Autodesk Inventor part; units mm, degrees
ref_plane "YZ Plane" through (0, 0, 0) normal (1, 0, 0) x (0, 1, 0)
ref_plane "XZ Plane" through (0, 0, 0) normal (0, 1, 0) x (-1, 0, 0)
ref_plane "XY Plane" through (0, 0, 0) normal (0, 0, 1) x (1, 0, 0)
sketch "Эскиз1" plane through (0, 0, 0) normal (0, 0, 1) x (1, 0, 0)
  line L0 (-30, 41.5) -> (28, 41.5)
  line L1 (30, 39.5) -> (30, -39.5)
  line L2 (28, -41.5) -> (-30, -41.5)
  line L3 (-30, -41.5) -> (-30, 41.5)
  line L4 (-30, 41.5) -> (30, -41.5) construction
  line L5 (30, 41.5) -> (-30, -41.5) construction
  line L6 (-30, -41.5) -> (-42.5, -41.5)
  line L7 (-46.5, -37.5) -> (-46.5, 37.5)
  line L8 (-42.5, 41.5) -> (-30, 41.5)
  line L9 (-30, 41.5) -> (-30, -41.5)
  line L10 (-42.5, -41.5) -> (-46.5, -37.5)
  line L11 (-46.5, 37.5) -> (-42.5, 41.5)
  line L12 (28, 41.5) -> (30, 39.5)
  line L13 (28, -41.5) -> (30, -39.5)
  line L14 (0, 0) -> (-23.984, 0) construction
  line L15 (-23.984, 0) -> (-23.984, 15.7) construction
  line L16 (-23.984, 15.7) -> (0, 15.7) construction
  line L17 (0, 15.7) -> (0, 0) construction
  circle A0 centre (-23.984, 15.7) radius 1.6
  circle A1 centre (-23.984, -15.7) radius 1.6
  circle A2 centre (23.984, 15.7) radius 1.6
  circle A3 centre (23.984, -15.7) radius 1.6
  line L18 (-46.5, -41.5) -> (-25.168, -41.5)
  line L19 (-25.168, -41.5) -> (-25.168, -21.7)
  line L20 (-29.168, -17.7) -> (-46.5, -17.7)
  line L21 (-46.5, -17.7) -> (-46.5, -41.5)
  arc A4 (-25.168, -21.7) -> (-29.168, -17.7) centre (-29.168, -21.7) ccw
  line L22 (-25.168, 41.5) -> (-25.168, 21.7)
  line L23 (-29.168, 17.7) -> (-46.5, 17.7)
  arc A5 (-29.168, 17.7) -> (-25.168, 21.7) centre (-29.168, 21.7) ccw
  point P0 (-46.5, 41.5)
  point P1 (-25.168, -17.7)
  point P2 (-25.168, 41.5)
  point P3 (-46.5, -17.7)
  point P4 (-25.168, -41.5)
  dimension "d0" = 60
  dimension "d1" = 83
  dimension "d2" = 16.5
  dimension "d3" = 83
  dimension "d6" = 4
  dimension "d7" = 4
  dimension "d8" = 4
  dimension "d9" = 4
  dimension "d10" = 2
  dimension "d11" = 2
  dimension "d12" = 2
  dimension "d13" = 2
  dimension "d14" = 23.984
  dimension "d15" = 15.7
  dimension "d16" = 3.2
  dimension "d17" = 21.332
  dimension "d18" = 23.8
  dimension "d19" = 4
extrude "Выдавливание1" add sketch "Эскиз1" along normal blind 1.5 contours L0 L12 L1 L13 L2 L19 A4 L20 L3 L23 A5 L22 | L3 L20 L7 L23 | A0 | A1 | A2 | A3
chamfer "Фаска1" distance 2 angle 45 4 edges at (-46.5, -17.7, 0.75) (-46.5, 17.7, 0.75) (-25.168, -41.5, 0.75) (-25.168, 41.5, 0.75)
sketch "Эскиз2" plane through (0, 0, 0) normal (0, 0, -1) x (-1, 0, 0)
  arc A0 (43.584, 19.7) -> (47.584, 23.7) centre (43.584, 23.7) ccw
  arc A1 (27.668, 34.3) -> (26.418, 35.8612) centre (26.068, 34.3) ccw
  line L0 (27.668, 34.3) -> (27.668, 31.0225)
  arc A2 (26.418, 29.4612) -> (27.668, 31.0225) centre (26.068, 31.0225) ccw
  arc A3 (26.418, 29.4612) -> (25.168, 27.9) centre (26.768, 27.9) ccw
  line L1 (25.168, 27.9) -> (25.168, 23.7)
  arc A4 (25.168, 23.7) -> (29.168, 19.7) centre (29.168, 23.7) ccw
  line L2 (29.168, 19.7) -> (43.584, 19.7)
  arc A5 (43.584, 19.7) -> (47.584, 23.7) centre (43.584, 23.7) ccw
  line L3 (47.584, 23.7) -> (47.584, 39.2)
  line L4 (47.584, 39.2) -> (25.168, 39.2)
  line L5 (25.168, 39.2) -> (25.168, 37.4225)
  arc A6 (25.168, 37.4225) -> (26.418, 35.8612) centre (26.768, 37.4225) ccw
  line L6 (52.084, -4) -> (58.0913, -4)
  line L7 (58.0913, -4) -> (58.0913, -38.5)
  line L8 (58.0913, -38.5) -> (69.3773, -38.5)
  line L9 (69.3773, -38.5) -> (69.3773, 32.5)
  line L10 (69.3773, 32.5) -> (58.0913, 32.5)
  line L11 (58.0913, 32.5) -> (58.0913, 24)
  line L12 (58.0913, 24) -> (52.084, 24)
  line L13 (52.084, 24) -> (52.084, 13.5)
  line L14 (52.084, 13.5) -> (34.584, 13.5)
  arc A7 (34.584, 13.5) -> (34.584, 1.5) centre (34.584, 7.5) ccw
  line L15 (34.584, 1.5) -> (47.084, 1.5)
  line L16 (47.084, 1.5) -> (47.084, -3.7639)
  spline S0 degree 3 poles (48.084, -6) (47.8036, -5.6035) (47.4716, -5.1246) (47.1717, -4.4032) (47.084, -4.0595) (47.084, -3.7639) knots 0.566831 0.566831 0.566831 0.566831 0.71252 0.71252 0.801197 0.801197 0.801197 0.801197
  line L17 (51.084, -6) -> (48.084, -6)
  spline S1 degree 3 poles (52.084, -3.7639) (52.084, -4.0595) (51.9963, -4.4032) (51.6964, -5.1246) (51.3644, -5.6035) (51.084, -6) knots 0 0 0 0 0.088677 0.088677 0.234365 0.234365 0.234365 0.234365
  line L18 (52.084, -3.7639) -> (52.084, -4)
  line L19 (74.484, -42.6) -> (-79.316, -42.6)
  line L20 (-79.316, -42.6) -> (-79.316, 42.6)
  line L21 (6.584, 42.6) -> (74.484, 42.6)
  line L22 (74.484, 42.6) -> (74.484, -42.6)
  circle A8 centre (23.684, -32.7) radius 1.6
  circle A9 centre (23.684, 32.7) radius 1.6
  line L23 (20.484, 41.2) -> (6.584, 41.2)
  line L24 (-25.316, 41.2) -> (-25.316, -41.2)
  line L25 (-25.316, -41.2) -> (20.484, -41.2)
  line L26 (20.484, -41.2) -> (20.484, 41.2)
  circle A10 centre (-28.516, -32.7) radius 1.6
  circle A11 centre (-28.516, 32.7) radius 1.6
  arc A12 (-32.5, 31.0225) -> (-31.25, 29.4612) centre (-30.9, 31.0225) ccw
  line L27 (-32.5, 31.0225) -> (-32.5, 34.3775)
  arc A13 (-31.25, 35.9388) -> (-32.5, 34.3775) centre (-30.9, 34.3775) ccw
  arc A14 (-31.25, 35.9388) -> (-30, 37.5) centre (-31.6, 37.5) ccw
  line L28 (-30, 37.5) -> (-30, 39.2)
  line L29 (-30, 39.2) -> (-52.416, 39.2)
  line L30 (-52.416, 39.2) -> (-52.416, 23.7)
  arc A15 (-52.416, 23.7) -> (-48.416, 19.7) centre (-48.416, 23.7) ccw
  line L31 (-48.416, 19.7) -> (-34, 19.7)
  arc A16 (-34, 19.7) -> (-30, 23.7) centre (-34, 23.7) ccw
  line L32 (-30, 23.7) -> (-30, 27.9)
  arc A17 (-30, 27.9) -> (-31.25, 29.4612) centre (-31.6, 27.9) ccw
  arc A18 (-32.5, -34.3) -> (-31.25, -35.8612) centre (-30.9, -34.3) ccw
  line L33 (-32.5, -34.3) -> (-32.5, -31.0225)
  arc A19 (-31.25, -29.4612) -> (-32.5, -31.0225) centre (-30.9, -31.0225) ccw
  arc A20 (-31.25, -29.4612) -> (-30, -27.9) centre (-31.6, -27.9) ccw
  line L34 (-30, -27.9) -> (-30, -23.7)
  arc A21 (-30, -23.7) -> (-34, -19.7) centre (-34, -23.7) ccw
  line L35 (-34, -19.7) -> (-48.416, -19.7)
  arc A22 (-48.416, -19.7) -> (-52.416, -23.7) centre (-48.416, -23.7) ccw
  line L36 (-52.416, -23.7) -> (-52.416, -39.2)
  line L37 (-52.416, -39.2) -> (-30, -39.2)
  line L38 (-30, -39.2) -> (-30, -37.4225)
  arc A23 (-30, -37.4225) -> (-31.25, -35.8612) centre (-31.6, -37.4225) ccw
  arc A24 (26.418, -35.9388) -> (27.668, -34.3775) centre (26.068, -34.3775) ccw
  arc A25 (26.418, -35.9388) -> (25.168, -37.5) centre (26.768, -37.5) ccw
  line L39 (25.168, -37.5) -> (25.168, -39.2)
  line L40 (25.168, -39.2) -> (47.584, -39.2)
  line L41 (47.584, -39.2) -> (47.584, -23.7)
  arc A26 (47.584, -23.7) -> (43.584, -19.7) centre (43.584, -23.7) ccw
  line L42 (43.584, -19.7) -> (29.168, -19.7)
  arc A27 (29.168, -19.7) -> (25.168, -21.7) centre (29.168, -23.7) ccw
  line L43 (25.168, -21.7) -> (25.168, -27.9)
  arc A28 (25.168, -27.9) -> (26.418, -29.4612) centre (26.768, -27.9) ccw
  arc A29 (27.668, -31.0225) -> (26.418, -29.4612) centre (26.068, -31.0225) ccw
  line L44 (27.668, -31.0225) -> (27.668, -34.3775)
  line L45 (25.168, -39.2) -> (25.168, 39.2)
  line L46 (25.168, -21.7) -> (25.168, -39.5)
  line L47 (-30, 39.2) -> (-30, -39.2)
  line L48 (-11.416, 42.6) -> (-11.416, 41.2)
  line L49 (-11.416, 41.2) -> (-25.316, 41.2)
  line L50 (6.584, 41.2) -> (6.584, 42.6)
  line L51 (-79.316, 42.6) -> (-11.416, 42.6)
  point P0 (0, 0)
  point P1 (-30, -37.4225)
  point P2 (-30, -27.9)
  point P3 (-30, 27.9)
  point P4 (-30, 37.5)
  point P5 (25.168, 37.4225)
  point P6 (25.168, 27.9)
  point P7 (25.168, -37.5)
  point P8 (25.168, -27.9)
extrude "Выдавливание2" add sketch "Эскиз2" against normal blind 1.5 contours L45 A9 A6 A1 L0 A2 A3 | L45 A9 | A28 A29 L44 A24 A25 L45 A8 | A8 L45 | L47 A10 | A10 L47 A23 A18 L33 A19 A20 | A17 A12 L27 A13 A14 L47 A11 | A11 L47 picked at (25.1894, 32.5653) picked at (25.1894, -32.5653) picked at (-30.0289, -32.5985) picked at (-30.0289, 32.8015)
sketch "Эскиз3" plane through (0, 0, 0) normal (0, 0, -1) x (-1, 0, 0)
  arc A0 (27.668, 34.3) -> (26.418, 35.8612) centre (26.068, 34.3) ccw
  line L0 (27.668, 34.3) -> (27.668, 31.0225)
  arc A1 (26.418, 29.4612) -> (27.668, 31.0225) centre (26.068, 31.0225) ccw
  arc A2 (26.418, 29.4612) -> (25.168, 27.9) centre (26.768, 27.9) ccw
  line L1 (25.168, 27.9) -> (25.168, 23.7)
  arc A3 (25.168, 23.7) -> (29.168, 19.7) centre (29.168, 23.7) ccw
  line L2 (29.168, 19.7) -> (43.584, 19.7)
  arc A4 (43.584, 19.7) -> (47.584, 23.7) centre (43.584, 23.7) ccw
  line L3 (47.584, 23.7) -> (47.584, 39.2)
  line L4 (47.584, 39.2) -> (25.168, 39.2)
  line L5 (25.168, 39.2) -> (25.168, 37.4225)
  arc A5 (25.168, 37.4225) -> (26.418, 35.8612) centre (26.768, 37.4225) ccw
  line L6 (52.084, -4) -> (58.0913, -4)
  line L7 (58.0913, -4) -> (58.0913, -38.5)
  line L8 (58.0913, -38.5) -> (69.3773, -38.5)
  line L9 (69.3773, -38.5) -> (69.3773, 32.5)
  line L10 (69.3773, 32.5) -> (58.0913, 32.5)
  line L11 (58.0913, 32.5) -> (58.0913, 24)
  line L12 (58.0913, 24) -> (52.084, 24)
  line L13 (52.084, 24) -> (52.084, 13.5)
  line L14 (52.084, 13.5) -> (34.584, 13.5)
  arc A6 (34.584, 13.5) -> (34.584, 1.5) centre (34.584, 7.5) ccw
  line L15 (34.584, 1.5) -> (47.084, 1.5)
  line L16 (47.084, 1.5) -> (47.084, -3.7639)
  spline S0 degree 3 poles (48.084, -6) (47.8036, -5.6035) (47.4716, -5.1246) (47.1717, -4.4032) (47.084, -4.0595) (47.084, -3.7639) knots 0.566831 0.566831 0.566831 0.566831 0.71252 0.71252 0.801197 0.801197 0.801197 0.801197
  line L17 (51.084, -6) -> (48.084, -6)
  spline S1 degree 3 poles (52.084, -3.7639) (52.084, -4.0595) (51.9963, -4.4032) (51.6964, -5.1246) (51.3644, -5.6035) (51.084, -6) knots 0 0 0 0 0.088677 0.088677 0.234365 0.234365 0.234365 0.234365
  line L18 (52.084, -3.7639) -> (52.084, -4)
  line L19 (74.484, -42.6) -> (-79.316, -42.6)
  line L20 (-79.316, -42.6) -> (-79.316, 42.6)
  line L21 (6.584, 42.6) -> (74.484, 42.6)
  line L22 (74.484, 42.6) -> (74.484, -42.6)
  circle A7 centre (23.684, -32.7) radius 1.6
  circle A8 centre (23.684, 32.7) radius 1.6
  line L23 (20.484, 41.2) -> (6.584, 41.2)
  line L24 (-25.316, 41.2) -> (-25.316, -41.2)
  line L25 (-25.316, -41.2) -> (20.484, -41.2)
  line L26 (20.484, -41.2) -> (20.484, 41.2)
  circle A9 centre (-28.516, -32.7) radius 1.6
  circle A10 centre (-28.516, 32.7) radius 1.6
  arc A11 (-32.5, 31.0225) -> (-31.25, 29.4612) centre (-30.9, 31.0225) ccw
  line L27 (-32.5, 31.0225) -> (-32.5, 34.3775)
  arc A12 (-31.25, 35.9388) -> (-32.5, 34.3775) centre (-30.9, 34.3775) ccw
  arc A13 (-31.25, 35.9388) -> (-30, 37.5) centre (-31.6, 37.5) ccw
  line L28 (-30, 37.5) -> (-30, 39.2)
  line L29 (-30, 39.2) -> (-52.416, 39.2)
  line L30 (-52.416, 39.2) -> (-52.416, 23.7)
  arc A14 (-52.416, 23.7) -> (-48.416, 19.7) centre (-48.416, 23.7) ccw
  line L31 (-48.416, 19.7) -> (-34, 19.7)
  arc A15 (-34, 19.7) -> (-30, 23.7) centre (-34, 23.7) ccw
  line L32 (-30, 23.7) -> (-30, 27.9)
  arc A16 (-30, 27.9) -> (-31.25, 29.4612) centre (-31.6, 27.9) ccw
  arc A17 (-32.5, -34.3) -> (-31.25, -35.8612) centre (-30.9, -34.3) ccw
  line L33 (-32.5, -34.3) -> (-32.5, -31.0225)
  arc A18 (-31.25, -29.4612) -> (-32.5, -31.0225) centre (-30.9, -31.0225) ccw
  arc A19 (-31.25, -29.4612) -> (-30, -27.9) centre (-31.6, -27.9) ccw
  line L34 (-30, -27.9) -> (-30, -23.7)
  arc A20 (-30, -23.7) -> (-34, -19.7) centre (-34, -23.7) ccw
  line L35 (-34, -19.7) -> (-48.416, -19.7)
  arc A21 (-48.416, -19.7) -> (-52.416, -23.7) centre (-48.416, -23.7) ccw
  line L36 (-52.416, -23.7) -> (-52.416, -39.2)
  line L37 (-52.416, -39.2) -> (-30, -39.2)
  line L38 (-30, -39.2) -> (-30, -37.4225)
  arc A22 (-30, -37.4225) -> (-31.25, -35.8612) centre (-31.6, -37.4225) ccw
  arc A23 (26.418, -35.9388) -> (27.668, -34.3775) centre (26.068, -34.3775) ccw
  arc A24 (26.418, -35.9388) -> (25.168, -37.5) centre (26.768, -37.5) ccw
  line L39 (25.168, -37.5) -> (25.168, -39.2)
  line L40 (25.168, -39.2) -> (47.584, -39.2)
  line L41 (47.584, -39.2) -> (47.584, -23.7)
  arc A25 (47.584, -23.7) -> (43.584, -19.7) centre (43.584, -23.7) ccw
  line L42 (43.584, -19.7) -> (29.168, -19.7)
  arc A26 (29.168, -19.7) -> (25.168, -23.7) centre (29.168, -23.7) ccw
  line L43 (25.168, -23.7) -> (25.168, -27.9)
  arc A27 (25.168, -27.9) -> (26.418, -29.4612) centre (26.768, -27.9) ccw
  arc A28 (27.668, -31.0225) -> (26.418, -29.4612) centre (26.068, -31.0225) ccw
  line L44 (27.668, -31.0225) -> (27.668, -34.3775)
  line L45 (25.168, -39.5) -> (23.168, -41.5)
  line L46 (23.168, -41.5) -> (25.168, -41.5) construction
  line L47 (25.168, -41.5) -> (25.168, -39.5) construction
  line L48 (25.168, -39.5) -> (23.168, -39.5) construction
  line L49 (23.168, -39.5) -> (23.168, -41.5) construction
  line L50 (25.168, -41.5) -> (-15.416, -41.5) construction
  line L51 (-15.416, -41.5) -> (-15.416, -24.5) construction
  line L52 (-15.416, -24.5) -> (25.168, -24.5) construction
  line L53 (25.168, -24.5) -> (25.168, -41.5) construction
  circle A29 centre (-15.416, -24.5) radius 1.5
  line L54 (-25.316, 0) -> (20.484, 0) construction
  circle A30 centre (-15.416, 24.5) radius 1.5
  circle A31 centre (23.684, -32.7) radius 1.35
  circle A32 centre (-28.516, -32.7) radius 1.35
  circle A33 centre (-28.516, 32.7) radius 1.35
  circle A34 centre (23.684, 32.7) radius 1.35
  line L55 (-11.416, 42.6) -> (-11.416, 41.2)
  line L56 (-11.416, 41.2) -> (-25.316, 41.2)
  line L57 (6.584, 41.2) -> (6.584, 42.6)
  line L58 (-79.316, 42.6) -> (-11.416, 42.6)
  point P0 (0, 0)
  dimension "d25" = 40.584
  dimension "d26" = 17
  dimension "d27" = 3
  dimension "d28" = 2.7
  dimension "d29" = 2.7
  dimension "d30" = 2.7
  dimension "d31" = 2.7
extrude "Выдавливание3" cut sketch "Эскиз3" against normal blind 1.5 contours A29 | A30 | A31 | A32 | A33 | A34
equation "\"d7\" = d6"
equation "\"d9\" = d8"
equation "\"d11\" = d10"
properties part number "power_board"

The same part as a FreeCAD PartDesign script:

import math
import FreeCAD as App
import Part
import Sketcher

V = App.Vector
Q = App.Units.Quantity


def edges_at(feature, points):
    """Names of the edges that pass closest to the given points."""
    edges = feature.Shape.Edges
    near = lambda p: min(range(len(edges)), key=lambda i: edges[i].distToShape(Part.Vertex(*p))[0])
    return sorted({f"Edge{near(p) + 1}" for p in points})

doc = App.newDocument("Part")
body = doc.addObject("PartDesign::Body", "Body")

# Sketch on XY plane
sketch1 = doc.addObject("Sketcher::SketchObject", "Sketch")
body.addObject(sketch1)
sketch1.AttachmentSupport = (doc.XY_Plane, [""])
sketch1.MapMode = "FlatFace"
sketch1.addGeometry([
    Part.LineSegment(V(28, 41.5, 0), V(-25.2, 41.5, 0)),  # 0
    Part.LineSegment(V(-25.2, 41.5, 0), V(-25.2, 21.7, 0)),  # 1
    Part.ArcOfCircle(Part.Circle(V(-29.2, 21.7, 0), V(0, 0, 1), 4), math.radians(-90), math.radians(0)),  # 2
    Part.LineSegment(V(-29.2, 17.7, 0), V(-46.5, 17.7, 0)),  # 3
    Part.LineSegment(V(-46.5, 17.7, 0), V(-46.5, -17.7, 0)),  # 4
    Part.LineSegment(V(-46.5, -17.7, 0), V(-29.2, -17.7, 0)),  # 5
    Part.ArcOfCircle(Part.Circle(V(-29.2, -21.7, 0), V(0, 0, 1), 4), math.radians(0), math.radians(90)),  # 6
    Part.LineSegment(V(-25.2, -21.7, 0), V(-25.2, -41.5, 0)),  # 7
    Part.LineSegment(V(-25.2, -41.5, 0), V(28, -41.5, 0)),  # 8
    Part.LineSegment(V(28, -41.5, 0), V(30, -39.5, 0)),  # 9
    Part.LineSegment(V(30, -39.5, 0), V(30, 39.5, 0)),  # 10
    Part.LineSegment(V(30, 39.5, 0), V(28, 41.5, 0)),  # 11
], False)
sketch1.addConstraint([
    Sketcher.Constraint("Coincident", 0, 2, 1, 1),
    Sketcher.Constraint("Tangent", 1, 2, 2, 2),
    Sketcher.Constraint("Tangent", 2, 1, 3, 1),
    Sketcher.Constraint("Coincident", 3, 2, 4, 1),
    Sketcher.Constraint("Coincident", 4, 2, 5, 1),
    Sketcher.Constraint("Tangent", 5, 2, 6, 2),
    Sketcher.Constraint("Tangent", 6, 1, 7, 1),
    Sketcher.Constraint("Coincident", 7, 2, 8, 1),
    Sketcher.Constraint("Coincident", 8, 2, 9, 1),
    Sketcher.Constraint("Coincident", 9, 2, 10, 1),
    Sketcher.Constraint("Coincident", 10, 2, 11, 1),
    Sketcher.Constraint("Coincident", 11, 2, 0, 1),
    Sketcher.Constraint("Horizontal", 0),
    Sketcher.Constraint("Vertical", 1),
    Sketcher.Constraint("Horizontal", 3),
    Sketcher.Constraint("Vertical", 4),
    Sketcher.Constraint("Horizontal", 5),
    Sketcher.Constraint("Vertical", 7),
    Sketcher.Constraint("Horizontal", 8),
    Sketcher.Constraint("Vertical", 10),
    Sketcher.Constraint("Equal", 2, 6),
    Sketcher.Constraint("Symmetric", 2, 3, 6, 3, -1),
    Sketcher.Constraint("Symmetric", 8, 2, 11, 2, -1),
    Sketcher.Constraint("Perpendicular", 9, 11),
    Sketcher.Constraint("Equal", 9, 11),
    Sketcher.Constraint("Radius", 2, Q("4 mm")),
    Sketcher.Constraint("DistanceX", 8, 2, 9, 2, Q("2 mm")),
    Sketcher.Constraint("DistanceY", 2, 1, 0, 2, Q("23.8 mm")),
    Sketcher.Constraint("DistanceY", 10, 1, 10, 2, Q("79 mm")),
    Sketcher.Constraint("DistanceX", -1, 1, 8, 2, Q("28 mm")),
    Sketcher.Constraint("DistanceX", 3, 2, 1, 2, Q("21.332 mm")),
    Sketcher.Constraint("DistanceX", 3, 2, -1, 1, Q("46.5 mm")),
])
pad1 = doc.addObject("PartDesign::Pad", "Pad")
body.addObject(pad1)
pad1.Profile = sketch1
pad1.Length = 1.5
doc.recompute()

chamfer = doc.addObject("PartDesign::Chamfer", "Chamfer")
body.addObject(chamfer)
chamfer.Base = (pad1, edges_at(pad1, [
    (-46.5, -17.7, 0.75),
    (-46.5, 17.7, 0.75),
    (-25.168, -41.5, 0.75),
    (-25.168, 41.5, 0.75),
]))
chamfer.Size = 2

# Sketch on XY plane
sketch2 = doc.addObject("Sketcher::SketchObject", "Sketch001")
body.addObject(sketch2)
sketch2.AttachmentSupport = (doc.XY_Plane, [""])
sketch2.MapMode = "FlatFace"
sketch2.addGeometry([
    Part.ArcOfCircle(Part.Circle(V(-26.8, 27.9, 0), V(0, 0, 1), 1.6), math.radians(0), math.radians(77)),  # 0
    Part.ArcOfCircle(Part.Circle(V(-26.1, 31, 0), V(0, 0, 1), 1.6), math.radians(180), math.radians(257)),  # 1
    Part.LineSegment(V(-27.7, 31, 0), V(-27.7, 34.3, 0)),  # 2
    Part.ArcOfCircle(Part.Circle(V(-26.1, 34.3, 0), V(0, 0, 1), 1.6), math.radians(103), math.radians(180)),  # 3
    Part.ArcOfCircle(Part.Circle(V(-26.8, 37.4, 0), V(0, 0, 1), 1.6), math.radians(-77), math.radians(0)),  # 4
    Part.LineSegment(V(-25.2, 37.4, 0), V(-25.2, 27.9, 0)),  # 5
    Part.ArcOfCircle(Part.Circle(V(-26.8, -27.9, 0), V(0, 0, 1), 1.6), math.radians(-77), math.radians(0)),  # 6
    Part.LineSegment(V(-25.2, -27.9, 0), V(-25.2, -37.5, 0)),  # 7
    Part.ArcOfCircle(Part.Circle(V(-26.8, -37.5, 0), V(0, 0, 1), 1.6), math.radians(0), math.radians(77)),  # 8
    Part.ArcOfCircle(Part.Circle(V(-26.1, -34.4, 0), V(0, 0, 1), 1.6), math.radians(180), math.radians(257)),  # 9
    Part.LineSegment(V(-27.7, -34.4, 0), V(-27.7, -31, 0)),  # 10
    Part.ArcOfCircle(Part.Circle(V(-26.1, -31, 0), V(0, 0, 1), 1.6), math.radians(103), math.radians(180)),  # 11
    Part.ArcOfCircle(Part.Circle(V(31.6, -27.9, 0), V(0, 0, 1), 1.6), math.radians(180), math.radians(257)),  # 12
    Part.ArcOfCircle(Part.Circle(V(30.9, -31, 0), V(0, 0, 1), 1.6), math.radians(0), math.radians(77)),  # 13
    Part.LineSegment(V(32.5, -31, 0), V(32.5, -34.3, 0)),  # 14
    Part.ArcOfCircle(Part.Circle(V(30.9, -34.3, 0), V(0, 0, 1), 1.6), math.radians(-77), math.radians(0)),  # 15
    Part.ArcOfCircle(Part.Circle(V(31.6, -37.4, 0), V(0, 0, 1), 1.6), math.radians(103), math.radians(180)),  # 16
    Part.LineSegment(V(30, -37.4, 0), V(30, -27.9, 0)),  # 17
    Part.ArcOfCircle(Part.Circle(V(31.6, 27.9, 0), V(0, 0, 1), 1.6), math.radians(103), math.radians(180)),  # 18
    Part.LineSegment(V(30, 27.9, 0), V(30, 37.5, 0)),  # 19
    Part.ArcOfCircle(Part.Circle(V(31.6, 37.5, 0), V(0, 0, 1), 1.6), math.radians(180), math.radians(257)),  # 20
    Part.ArcOfCircle(Part.Circle(V(30.9, 34.4, 0), V(0, 0, 1), 1.6), math.radians(0), math.radians(77)),  # 21
    Part.LineSegment(V(32.5, 34.4, 0), V(32.5, 31, 0)),  # 22
    Part.ArcOfCircle(Part.Circle(V(30.9, 31, 0), V(0, 0, 1), 1.6), math.radians(-77), math.radians(0)),  # 23
], False)
sketch2.addConstraint([
    Sketcher.Constraint("Tangent", 0, 2, 1, 2),
    Sketcher.Constraint("Tangent", 1, 1, 2, 1),
    Sketcher.Constraint("Tangent", 2, 2, 3, 2),
    Sketcher.Constraint("Tangent", 3, 1, 4, 1),
    Sketcher.Constraint("Tangent", 4, 2, 5, 1),
    Sketcher.Constraint("Tangent", 5, 2, 0, 1),
    Sketcher.Constraint("Tangent", 6, 2, 7, 1),
    Sketcher.Constraint("Tangent", 7, 2, 8, 1),
    Sketcher.Constraint("Tangent", 8, 2, 9, 2),
    Sketcher.Constraint("Tangent", 9, 1, 10, 1),
    Sketcher.Constraint("Tangent", 10, 2, 11, 2),
    Sketcher.Constraint("Tangent", 11, 1, 6, 1),
    Sketcher.Constraint("Tangent", 12, 2, 13, 2),
    Sketcher.Constraint("Tangent", 13, 1, 14, 1),
    Sketcher.Constraint("Tangent", 14, 2, 15, 2),
    Sketcher.Constraint("Tangent", 15, 1, 16, 1),
    Sketcher.Constraint("Tangent", 16, 2, 17, 1),
    Sketcher.Constraint("Tangent", 17, 2, 12, 1),
    Sketcher.Constraint("Tangent", 18, 2, 19, 1),
    Sketcher.Constraint("Tangent", 19, 2, 20, 1),
    Sketcher.Constraint("Tangent", 20, 2, 21, 2),
    Sketcher.Constraint("Tangent", 21, 1, 22, 1),
    Sketcher.Constraint("Tangent", 22, 2, 23, 2),
    Sketcher.Constraint("Tangent", 23, 1, 18, 1),
    Sketcher.Constraint("Vertical", 2),
    Sketcher.Constraint("Vertical", 5),
    Sketcher.Constraint("Vertical", 7),
    Sketcher.Constraint("Vertical", 10),
    Sketcher.Constraint("Vertical", 14),
    Sketcher.Constraint("Vertical", 17),
    Sketcher.Constraint("Vertical", 19),
    Sketcher.Constraint("Vertical", 22),
    Sketcher.Constraint("Equal", 0, 1),
    Sketcher.Constraint("Equal", 1, 3),
    Sketcher.Constraint("Equal", 3, 4),
    Sketcher.Constraint("Equal", 4, 6),
    Sketcher.Constraint("Equal", 6, 8),
    Sketcher.Constraint("Equal", 8, 9),
    Sketcher.Constraint("Equal", 9, 11),
    Sketcher.Constraint("Equal", 11, 12),
    Sketcher.Constraint("Equal", 12, 13),
    Sketcher.Constraint("Equal", 13, 15),
    Sketcher.Constraint("Equal", 15, 16),
    Sketcher.Constraint("Equal", 16, 18),
    Sketcher.Constraint("Equal", 18, 20),
    Sketcher.Constraint("Equal", 20, 21),
    Sketcher.Constraint("Equal", 21, 23),
    Sketcher.Constraint("Symmetric", 0, 3, 6, 3, -1),
    Sketcher.Constraint("Symmetric", 12, 3, 18, 3, -1),
    Sketcher.Constraint("Horizontal", 6, 3, 12, 3),
    Sketcher.Constraint("Horizontal", 11, 3, 13, 3),
    Sketcher.Constraint("Horizontal", 1, 3, 23, 3),
    Sketcher.Constraint("Vertical", 3, 3, 9, 3),
    Sketcher.Constraint("Equal", 2, 14),
    Sketcher.Constraint("Equal", 7, 19),
    Sketcher.Constraint("Radius", 0, Q("1.6 mm")),
    Sketcher.Constraint("DistanceY", 7, 2, 7, 1, Q("9.6 mm")),
    Sketcher.Constraint("DistanceX", -1, 1, 16, 2, Q("30 mm")),
    Sketcher.Constraint("DistanceY", -1, 1, 0, 3, Q("27.9 mm")),
    Sketcher.Constraint("DistanceY", -1, 1, 3, 3, Q("34.3 mm")),
    Sketcher.Constraint("DistanceX", -1, 1, 13, 3, Q("30.9 mm")),
    Sketcher.Constraint("DistanceX", 0, 3, -1, 1, Q("26.768 mm")),
])
pad2 = doc.addObject("PartDesign::Pad", "Pad001")
body.addObject(pad2)
pad2.Profile = sketch2
pad2.Length = 1.5

# Sketch on XY plane
sketch3 = doc.addObject("Sketcher::SketchObject", "Sketch002")
body.addObject(sketch3)
sketch3.AttachmentSupport = (doc.XY_Plane, [""])
sketch3.MapMode = "FlatFace"
sketch3.addGeometry([
    Part.Circle(V(15.4, -24.5, 0), V(0, 0, 1), 1.5),  # 0
    Part.Circle(V(15.4, 24.5, 0), V(0, 0, 1), 1.5),  # 1
    Part.Circle(V(-23.7, -32.7, 0), V(0, 0, 1), 1.4),  # 2
    Part.Circle(V(28.5, -32.7, 0), V(0, 0, 1), 1.4),  # 3
    Part.Circle(V(28.5, 32.7, 0), V(0, 0, 1), 1.4),  # 4
    Part.Circle(V(-23.7, 32.7, 0), V(0, 0, 1), 1.4),  # 5
], False)
sketch3.addConstraint([
    Sketcher.Constraint("Equal", 0, 1),
    Sketcher.Constraint("Equal", 2, 3),
    Sketcher.Constraint("Equal", 3, 4),
    Sketcher.Constraint("Equal", 4, 5),
    Sketcher.Constraint("Symmetric", 0, 3, 1, 3, -1),
    Sketcher.Constraint("Symmetric", 3, 3, 4, 3, -1),
    Sketcher.Constraint("Symmetric", 2, 3, 5, 3, -1),
    Sketcher.Constraint("Horizontal", 2, 3, 3, 3),
    Sketcher.Constraint("Diameter", 0, Q("3 mm")),
    Sketcher.Constraint("Diameter", 2, Q("2.7 mm")),
    Sketcher.Constraint("DistanceY", 0, 3, 1, 3, Q("49 mm")),
    Sketcher.Constraint("DistanceY", 2, 3, -1, 1, Q("32.7 mm")),
    Sketcher.Constraint("DistanceX", 2, 3, 0, 3, Q("39.1 mm")),
    Sketcher.Constraint("DistanceX", 0, 3, 3, 3, Q("13.1 mm")),
    Sketcher.Constraint("DistanceX", -1, 1, 0, 3, Q("15.416 mm")),
])
pocket1 = doc.addObject("PartDesign::Pocket", "Pocket")
body.addObject(pocket1)
pocket1.Profile = sketch3
pocket1.Length = 1.5
pocket1.Reversed = True

doc.recompute()
